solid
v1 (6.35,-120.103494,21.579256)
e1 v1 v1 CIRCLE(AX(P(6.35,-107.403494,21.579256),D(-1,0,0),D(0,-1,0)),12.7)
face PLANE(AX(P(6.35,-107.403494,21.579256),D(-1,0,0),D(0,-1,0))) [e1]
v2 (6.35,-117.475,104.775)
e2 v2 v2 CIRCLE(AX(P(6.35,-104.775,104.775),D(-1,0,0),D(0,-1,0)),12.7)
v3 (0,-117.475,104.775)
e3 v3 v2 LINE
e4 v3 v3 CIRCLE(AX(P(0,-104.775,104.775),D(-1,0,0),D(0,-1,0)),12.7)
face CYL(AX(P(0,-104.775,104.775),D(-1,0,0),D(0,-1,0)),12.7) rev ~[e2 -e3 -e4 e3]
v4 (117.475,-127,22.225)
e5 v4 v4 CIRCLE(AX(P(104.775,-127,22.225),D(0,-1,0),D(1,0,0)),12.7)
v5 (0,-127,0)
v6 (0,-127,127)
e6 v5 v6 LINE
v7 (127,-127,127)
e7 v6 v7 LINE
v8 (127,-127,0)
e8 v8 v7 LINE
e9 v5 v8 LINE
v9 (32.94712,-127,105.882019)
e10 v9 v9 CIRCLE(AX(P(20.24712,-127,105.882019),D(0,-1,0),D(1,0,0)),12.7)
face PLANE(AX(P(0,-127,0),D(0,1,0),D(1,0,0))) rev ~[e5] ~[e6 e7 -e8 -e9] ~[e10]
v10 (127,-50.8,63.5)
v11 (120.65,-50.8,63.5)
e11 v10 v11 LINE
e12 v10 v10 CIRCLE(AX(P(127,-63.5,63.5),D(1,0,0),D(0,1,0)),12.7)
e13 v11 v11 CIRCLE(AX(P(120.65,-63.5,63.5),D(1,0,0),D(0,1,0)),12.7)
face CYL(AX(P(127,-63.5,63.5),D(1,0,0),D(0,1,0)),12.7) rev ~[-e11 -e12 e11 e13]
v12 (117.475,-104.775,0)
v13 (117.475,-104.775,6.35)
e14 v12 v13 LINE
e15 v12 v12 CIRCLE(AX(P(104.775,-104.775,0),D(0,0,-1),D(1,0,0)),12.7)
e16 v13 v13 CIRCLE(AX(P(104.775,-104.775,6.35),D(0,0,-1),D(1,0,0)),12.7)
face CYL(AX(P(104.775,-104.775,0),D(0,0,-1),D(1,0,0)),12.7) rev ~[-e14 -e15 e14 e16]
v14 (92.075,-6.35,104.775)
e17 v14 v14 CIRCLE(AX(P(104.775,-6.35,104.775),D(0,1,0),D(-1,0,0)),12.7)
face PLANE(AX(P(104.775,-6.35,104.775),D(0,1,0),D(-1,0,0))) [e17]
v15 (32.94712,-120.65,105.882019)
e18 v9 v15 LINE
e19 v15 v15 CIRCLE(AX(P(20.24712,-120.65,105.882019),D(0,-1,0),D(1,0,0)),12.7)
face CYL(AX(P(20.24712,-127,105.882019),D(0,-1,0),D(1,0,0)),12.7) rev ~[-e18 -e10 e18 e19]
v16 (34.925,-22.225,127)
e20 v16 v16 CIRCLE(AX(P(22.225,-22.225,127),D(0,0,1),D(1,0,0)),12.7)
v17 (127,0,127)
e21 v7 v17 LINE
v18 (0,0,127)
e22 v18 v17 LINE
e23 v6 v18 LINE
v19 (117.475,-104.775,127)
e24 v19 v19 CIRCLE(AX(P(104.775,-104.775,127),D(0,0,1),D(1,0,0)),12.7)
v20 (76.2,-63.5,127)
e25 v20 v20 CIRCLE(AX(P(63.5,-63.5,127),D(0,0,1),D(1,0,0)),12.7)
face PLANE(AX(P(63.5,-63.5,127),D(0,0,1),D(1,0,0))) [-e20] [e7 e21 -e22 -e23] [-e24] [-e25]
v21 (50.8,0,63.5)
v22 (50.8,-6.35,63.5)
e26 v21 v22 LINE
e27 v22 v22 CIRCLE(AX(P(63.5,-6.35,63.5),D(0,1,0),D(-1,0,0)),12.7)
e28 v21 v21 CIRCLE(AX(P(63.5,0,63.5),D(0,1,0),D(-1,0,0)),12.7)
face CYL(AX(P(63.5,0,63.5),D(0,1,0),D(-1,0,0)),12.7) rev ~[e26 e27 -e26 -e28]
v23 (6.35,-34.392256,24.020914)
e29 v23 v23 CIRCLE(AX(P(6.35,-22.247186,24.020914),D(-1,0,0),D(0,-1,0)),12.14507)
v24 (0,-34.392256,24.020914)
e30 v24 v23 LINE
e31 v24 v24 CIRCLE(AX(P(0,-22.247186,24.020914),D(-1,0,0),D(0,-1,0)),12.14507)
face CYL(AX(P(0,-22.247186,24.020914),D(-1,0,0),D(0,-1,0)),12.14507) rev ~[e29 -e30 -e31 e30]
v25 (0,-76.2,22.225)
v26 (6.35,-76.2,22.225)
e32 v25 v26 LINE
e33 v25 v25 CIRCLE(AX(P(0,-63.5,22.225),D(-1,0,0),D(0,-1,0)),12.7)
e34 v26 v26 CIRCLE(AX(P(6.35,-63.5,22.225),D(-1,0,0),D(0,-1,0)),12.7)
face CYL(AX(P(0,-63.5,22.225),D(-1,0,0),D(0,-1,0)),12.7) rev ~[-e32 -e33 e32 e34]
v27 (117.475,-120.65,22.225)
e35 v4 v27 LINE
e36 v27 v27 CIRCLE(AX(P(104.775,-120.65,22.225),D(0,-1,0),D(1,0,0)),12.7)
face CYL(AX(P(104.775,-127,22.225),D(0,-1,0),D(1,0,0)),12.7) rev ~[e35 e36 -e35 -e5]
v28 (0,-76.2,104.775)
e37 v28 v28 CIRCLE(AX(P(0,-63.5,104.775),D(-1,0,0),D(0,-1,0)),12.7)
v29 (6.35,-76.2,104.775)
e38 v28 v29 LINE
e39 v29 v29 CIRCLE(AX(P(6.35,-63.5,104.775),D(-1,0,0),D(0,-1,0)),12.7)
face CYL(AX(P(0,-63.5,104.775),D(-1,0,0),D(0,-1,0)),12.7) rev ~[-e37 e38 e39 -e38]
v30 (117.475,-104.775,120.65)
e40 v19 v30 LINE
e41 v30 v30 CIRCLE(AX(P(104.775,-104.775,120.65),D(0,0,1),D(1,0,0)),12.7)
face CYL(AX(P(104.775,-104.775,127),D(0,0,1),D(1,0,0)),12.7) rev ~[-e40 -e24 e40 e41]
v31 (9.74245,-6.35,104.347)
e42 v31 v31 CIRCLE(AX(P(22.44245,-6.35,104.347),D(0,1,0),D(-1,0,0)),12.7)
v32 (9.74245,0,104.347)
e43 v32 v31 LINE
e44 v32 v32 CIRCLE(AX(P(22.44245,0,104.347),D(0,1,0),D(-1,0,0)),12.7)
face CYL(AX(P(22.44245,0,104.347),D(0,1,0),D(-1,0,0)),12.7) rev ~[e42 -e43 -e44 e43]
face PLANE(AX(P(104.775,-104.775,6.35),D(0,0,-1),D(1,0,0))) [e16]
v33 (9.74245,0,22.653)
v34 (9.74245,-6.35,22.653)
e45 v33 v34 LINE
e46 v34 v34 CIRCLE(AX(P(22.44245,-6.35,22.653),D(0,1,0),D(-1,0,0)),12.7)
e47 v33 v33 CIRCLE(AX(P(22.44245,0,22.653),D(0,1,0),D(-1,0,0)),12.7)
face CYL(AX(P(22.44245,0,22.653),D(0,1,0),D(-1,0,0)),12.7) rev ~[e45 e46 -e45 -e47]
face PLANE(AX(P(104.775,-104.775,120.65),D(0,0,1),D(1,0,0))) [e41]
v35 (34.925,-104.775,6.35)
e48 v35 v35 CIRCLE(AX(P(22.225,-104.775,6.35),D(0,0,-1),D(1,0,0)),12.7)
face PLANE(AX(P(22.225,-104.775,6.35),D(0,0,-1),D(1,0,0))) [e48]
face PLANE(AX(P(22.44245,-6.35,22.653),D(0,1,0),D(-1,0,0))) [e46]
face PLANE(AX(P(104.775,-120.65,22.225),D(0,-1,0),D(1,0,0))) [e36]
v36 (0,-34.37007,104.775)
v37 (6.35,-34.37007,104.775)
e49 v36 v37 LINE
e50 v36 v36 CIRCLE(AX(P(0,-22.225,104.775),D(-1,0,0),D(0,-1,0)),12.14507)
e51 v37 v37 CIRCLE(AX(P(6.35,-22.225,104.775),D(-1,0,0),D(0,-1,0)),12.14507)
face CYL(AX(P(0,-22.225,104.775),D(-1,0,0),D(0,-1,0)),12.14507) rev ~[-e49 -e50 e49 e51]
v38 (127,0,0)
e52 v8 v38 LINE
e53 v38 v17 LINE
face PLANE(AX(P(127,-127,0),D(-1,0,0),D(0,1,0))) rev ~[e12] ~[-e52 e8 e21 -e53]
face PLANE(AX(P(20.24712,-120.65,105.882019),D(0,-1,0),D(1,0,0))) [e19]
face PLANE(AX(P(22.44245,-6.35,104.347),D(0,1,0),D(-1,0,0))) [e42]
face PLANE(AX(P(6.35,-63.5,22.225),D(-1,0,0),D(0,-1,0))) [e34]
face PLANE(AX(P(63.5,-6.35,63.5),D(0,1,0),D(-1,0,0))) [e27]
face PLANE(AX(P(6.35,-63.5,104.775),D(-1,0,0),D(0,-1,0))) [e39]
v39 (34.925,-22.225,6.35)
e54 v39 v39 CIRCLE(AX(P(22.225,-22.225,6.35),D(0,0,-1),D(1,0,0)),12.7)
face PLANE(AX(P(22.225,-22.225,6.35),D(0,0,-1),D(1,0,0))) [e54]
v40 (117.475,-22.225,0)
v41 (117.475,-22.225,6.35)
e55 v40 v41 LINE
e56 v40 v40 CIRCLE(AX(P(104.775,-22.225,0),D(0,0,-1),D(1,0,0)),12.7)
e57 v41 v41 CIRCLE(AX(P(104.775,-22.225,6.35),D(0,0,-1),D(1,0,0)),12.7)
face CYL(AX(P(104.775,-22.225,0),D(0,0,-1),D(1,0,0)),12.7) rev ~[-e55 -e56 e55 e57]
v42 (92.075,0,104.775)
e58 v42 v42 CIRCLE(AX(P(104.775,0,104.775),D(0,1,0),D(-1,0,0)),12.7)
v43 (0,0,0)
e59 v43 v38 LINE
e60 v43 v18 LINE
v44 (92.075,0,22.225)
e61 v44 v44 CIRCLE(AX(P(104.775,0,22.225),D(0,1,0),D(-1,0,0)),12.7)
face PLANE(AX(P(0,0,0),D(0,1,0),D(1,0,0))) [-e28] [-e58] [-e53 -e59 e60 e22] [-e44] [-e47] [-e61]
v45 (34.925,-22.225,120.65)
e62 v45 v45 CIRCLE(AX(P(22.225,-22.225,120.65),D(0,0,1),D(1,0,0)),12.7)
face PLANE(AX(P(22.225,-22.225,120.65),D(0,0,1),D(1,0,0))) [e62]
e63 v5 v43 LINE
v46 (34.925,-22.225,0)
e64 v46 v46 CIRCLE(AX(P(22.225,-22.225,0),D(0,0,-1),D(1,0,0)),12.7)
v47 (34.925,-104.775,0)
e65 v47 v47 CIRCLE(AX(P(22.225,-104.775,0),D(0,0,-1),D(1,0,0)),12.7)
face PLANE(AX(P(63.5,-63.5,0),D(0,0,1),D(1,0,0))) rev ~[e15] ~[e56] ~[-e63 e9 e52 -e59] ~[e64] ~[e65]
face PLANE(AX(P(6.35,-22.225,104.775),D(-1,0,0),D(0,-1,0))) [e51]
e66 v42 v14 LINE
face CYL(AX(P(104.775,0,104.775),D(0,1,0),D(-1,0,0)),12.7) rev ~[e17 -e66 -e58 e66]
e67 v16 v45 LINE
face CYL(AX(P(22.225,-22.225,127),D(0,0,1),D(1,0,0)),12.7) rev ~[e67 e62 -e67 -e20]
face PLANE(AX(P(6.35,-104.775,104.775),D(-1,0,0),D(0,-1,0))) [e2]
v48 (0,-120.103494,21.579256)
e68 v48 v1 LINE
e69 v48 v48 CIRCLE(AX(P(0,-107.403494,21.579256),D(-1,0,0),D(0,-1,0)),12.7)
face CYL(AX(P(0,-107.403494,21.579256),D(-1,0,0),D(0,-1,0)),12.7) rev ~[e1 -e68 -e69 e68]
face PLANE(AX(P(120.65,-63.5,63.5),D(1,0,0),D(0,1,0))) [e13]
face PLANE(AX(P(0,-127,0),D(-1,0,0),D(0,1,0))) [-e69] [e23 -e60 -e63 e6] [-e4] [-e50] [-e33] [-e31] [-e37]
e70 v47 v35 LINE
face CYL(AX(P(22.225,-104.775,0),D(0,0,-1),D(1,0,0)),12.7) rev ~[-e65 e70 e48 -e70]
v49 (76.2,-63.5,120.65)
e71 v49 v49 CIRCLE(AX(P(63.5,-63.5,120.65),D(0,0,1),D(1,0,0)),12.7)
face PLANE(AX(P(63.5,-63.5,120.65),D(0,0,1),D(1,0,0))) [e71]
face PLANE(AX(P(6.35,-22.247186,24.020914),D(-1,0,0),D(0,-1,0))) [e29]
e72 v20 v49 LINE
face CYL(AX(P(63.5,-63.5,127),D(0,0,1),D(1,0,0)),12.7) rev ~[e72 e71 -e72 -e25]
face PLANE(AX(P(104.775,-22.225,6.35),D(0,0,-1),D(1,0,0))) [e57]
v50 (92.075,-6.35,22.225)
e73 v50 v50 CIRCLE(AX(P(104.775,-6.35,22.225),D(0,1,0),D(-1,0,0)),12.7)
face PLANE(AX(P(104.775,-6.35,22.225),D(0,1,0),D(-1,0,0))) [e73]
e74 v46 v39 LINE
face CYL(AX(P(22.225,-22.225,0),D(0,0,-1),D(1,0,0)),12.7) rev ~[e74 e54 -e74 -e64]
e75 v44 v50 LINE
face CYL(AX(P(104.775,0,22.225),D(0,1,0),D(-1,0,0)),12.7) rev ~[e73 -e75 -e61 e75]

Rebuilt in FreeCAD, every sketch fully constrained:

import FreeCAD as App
import Part
import Sketcher
Q = App.Units.Quantity


def add_polygon(sketch, points):
    """Adds a closed chain of lines whose ends are joined by coincident constraints."""
    first, n = sketch.GeometryCount, len(points)
    for a, b in zip(points, points[1:] + points[:1]):
        sketch.addGeometry(Part.LineSegment(App.Vector(*a, 0), App.Vector(*b, 0)), False)
    for i in range(n):
        sketch.addConstraint(Sketcher.Constraint("Coincident", first + i, 2, first + (i + 1) % n, 1))

doc = App.newDocument("Part")
body = doc.addObject("PartDesign::Body", "Body")

sketch1 = body.newObject("Sketcher::SketchObject", "Sketch")
sketch1.AttachmentSupport = (doc.getObject("XY_Plane"), [""])
sketch1.MapMode = "FlatFace"
add_polygon(sketch1, [(0, 0), (0, -127), (127, -127), (127, 0)])
sketch1.addConstraint(Sketcher.Constraint("Vertical", 0))
sketch1.addConstraint(Sketcher.Constraint("Horizontal", 1))
sketch1.addConstraint(Sketcher.Constraint("Vertical", 2))
sketch1.addConstraint(Sketcher.Constraint("Horizontal", 3))
sketch1.addConstraint(Sketcher.Constraint("Coincident", 3, 2, -1, 1))
sketch1.addConstraint(Sketcher.Constraint("Equal", 3, 0))
sketch1.addConstraint(Sketcher.Constraint("DistanceX", 1, 1, 1, 2, Q("5 in")))
pad1 = body.newObject("PartDesign::Pad", "Pad")
pad1.Profile = sketch1
pad1.Length = Q("5 in")

sketch2 = body.newObject("Sketcher::SketchObject", "Sketch001")
sketch2.AttachmentSupport = (doc.getObject("YZ_Plane"), [""])
sketch2.MapMode = "FlatFace"
sketch2.AttachmentOffset = App.Placement(App.Vector(0, 0, 5 * 25.4), App.Rotation())
sketch2.addGeometry(Part.Circle(App.Vector(-63.5, 63.5, 0), App.Vector(0, 0, 1), 12.7), False)
sketch2.addConstraint(Sketcher.Constraint("Diameter", 0, Q("1 in")))
sketch2.addConstraint(Sketcher.Constraint("DistanceX", 0, 3, -1, 1, Q("2.5 in")))
sketch2.addConstraint(Sketcher.Constraint("DistanceY", -1, 1, 0, 3, Q("2.5 in")))
pocket1 = body.newObject("PartDesign::Pocket", "Pocket")
pocket1.Profile = sketch2
pocket1.Length = Q("0.25 in")

sketch3 = body.newObject("Sketcher::SketchObject", "Sketch002")
sketch3.AttachmentSupport = (doc.getObject("XZ_Plane"), [""])
sketch3.MapMode = "FlatFace"
sketch3.AttachmentOffset = App.Placement(App.Vector(0, 0, 5 * 25.4), App.Rotation())
sketch3.addGeometry(Part.Circle(App.Vector(20.24712, 105.882019, 0), App.Vector(0, 0, 1), 12.7), False)
sketch3.addGeometry(Part.Circle(App.Vector(104.775, 22.225, 0), App.Vector(0, 0, 1), 12.7), False)
sketch3.addConstraint(Sketcher.Constraint("Equal", 0, 1))
sketch3.addConstraint(Sketcher.Constraint("Diameter", 0, Q("1 in")))
sketch3.addConstraint(Sketcher.Constraint("DistanceX", -1, 1, 1, 3, Q("4.125 in")))
sketch3.addConstraint(Sketcher.Constraint("DistanceY", -1, 1, 1, 3, Q("0.875 in")))
sketch3.addConstraint(Sketcher.Constraint("DistanceX", -1, 1, 0, 3, Q("20.24712 mm")))
sketch3.addConstraint(Sketcher.Constraint("DistanceY", -1, 1, 0, 3, Q("105.882019 mm")))
pocket2 = body.newObject("PartDesign::Pocket", "Pocket001")
pocket2.Profile = sketch3
pocket2.Length = Q("0.25 in")

sketch4 = body.newObject("Sketcher::SketchObject", "Sketch003")
sketch4.AttachmentSupport = (doc.getObject("YZ_Plane"), [""])
sketch4.MapMode = "FlatFace"
sketch4.addGeometry(Part.Circle(App.Vector(-107.403494, 21.579256, 0), App.Vector(0, 0, 1), 12.7), False)
sketch4.addGeometry(Part.Circle(App.Vector(-63.5, 22.225, 0), App.Vector(0, 0, 1), 12.7), False)
sketch4.addGeometry(Part.Circle(App.Vector(-22.247186, 24.020914, 0), App.Vector(0, 0, 1), 12.14507), False)
sketch4.addGeometry(Part.Circle(App.Vector(-104.775, 104.775, 0), App.Vector(0, 0, 1), 12.7), False)
sketch4.addGeometry(Part.Circle(App.Vector(-63.5, 104.775, 0), App.Vector(0, 0, 1), 12.7), False)
sketch4.addGeometry(Part.Circle(App.Vector(-22.225, 104.775, 0), App.Vector(0, 0, 1), 12.14507), False)
sketch4.addConstraint(Sketcher.Constraint("Equal", 0, 1))
sketch4.addConstraint(Sketcher.Constraint("Equal", 1, 3))
sketch4.addConstraint(Sketcher.Constraint("Equal", 3, 4))
sketch4.addConstraint(Sketcher.Constraint("Equal", 2, 5))
sketch4.addConstraint(Sketcher.Constraint("Horizontal", 3, 3, 4, 3))
sketch4.addConstraint(Sketcher.Constraint("Horizontal", 4, 3, 5, 3))
sketch4.addConstraint(Sketcher.Constraint("Vertical", 1, 3, 4, 3))
sketch4.addConstraint(Sketcher.Constraint("Diameter", 0, Q("1 in")))
sketch4.addConstraint(Sketcher.Constraint("DistanceX", 1, 3, -1, 1, Q("2.5 in")))
sketch4.addConstraint(Sketcher.Constraint("DistanceY", 1, 3, 3, 3, Q("3.25 in")))
sketch4.addConstraint(Sketcher.Constraint("DistanceX", 3, 3, 5, 3, Q("3.25 in")))
sketch4.addConstraint(Sketcher.Constraint("Diameter", 2, Q("24.29014 mm")))
sketch4.addConstraint(Sketcher.Constraint("DistanceY", -1, 1, 1, 3, Q("0.875 in")))
sketch4.addConstraint(Sketcher.Constraint("DistanceX", 3, 3, -1, 1, Q("4.125 in")))
sketch4.addConstraint(Sketcher.Constraint("DistanceY", 0, 3, 2, 3, Q("2.441658 mm")))
sketch4.addConstraint(Sketcher.Constraint("DistanceX", 0, 3, -1, 1, Q("107.403494 mm")))
sketch4.addConstraint(Sketcher.Constraint("DistanceY", -1, 1, 0, 3, Q("21.579256 mm")))
sketch4.addConstraint(Sketcher.Constraint("DistanceX", 2, 3, -1, 1, Q("22.247186 mm")))
pocket3 = body.newObject("PartDesign::Pocket", "Pocket002")
pocket3.Profile = sketch4
pocket3.Length = Q("0.25 in")
pocket3.Reversed = True

sketch5 = body.newObject("Sketcher::SketchObject", "Sketch004")
sketch5.AttachmentSupport = (doc.getObject("XZ_Plane"), [""])
sketch5.MapMode = "FlatFace"
sketch5.addGeometry(Part.Circle(App.Vector(22.44245, 104.347, 0), App.Vector(0, 0, 1), 12.7), False)
sketch5.addGeometry(Part.Circle(App.Vector(63.5, 63.5, 0), App.Vector(0, 0, 1), 12.7), False)
sketch5.addGeometry(Part.Circle(App.Vector(22.44245, 22.653, 0), App.Vector(0, 0, 1), 12.7), False)
sketch5.addGeometry(Part.Circle(App.Vector(104.775, 22.225, 0), App.Vector(0, 0, 1), 12.7), False)
sketch5.addGeometry(Part.Circle(App.Vector(104.775, 104.775, 0), App.Vector(0, 0, 1), 12.7), False)
sketch5.addConstraint(Sketcher.Constraint("Equal", 0, 1))
sketch5.addConstraint(Sketcher.Constraint("Equal", 1, 2))
sketch5.addConstraint(Sketcher.Constraint("Equal", 2, 3))
sketch5.addConstraint(Sketcher.Constraint("Equal", 3, 4))
sketch5.addConstraint(Sketcher.Constraint("Vertical", 0, 3, 2, 3))
sketch5.addConstraint(Sketcher.Constraint("Vertical", 3, 3, 4, 3))
sketch5.addConstraint(Sketcher.Constraint("Diameter", 0, Q("1 in")))
sketch5.addConstraint(Sketcher.Constraint("DistanceX", -1, 1, 1, 3, Q("2.5 in")))
sketch5.addConstraint(Sketcher.Constraint("DistanceY", -1, 1, 1, 3, Q("2.5 in")))
sketch5.addConstraint(Sketcher.Constraint("DistanceY", 3, 3, 4, 3, Q("3.25 in")))
sketch5.addConstraint(Sketcher.Constraint("DistanceX", -1, 1, 3, 3, Q("4.125 in")))
sketch5.addConstraint(Sketcher.Constraint("DistanceY", -1, 1, 3, 3, Q("0.875 in")))
sketch5.addConstraint(Sketcher.Constraint("DistanceY", -1, 1, 0, 3, Q("104.347 mm")))
sketch5.addConstraint(Sketcher.Constraint("DistanceY", -1, 1, 2, 3, Q("22.653 mm")))
sketch5.addConstraint(Sketcher.Constraint("DistanceX", -1, 1, 0, 3, Q("22.44245 mm")))
pocket4 = body.newObject("PartDesign::Pocket", "Pocket003")
pocket4.Profile = sketch5
pocket4.Length = Q("0.25 in")
pocket4.Reversed = True

sketch6 = body.newObject("Sketcher::SketchObject", "Sketch005")
sketch6.AttachmentSupport = (doc.getObject("XY_Plane"), [""])
sketch6.MapMode = "FlatFace"
sketch6.addGeometry(Part.Circle(App.Vector(104.775, -104.775, 0), App.Vector(0, 0, 1), 12.7), False)
sketch6.addGeometry(Part.Circle(App.Vector(22.225, -104.775, 0), App.Vector(0, 0, 1), 12.7), False)
sketch6.addGeometry(Part.Circle(App.Vector(104.775, -22.225, 0), App.Vector(0, 0, 1), 12.7), False)
sketch6.addGeometry(Part.Circle(App.Vector(22.225, -22.225, 0), App.Vector(0, 0, 1), 12.7), False)
sketch6.addConstraint(Sketcher.Constraint("Equal", 0, 1))
sketch6.addConstraint(Sketcher.Constraint("Equal", 1, 2))
sketch6.addConstraint(Sketcher.Constraint("Equal", 2, 3))
sketch6.addConstraint(Sketcher.Constraint("Horizontal", 0, 3, 1, 3))
sketch6.addConstraint(Sketcher.Constraint("Horizontal", 2, 3, 3, 3))
sketch6.addConstraint(Sketcher.Constraint("Vertical", 0, 3, 2, 3))
sketch6.addConstraint(Sketcher.Constraint("Vertical", 1, 3, 3, 3))
sketch6.addConstraint(Sketcher.Constraint("Diameter", 0, Q("1 in")))
sketch6.addConstraint(Sketcher.Constraint("DistanceX", 1, 3, 0, 3, Q("3.25 in")))
sketch6.addConstraint(Sketcher.Constraint("DistanceY", 0, 3, 2, 3, Q("3.25 in")))
sketch6.addConstraint(Sketcher.Constraint("DistanceX", -1, 1, 0, 3, Q("4.125 in")))
sketch6.addConstraint(Sketcher.Constraint("DistanceY", 0, 3, -1, 1, Q("4.125 in")))
pocket5 = body.newObject("PartDesign::Pocket", "Pocket004")
pocket5.Profile = sketch6
pocket5.Length = Q("0.25 in")
pocket5.Reversed = True

sketch7 = body.newObject("Sketcher::SketchObject", "Sketch006")
sketch7.AttachmentSupport = (doc.getObject("XY_Plane"), [""])
sketch7.MapMode = "FlatFace"
sketch7.AttachmentOffset = App.Placement(App.Vector(0, 0, 5 * 25.4), App.Rotation())
sketch7.addGeometry(Part.Circle(App.Vector(63.5, -63.5, 0), App.Vector(0, 0, 1), 12.7), False)
sketch7.addGeometry(Part.Circle(App.Vector(104.775, -104.775, 0), App.Vector(0, 0, 1), 12.7), False)
sketch7.addGeometry(Part.Circle(App.Vector(22.225, -22.225, 0), App.Vector(0, 0, 1), 12.7), False)
sketch7.addConstraint(Sketcher.Constraint("Equal", 0, 1))
sketch7.addConstraint(Sketcher.Constraint("Equal", 1, 2))
sketch7.addConstraint(Sketcher.Constraint("Diameter", 0, Q("1 in")))
sketch7.addConstraint(Sketcher.Constraint("DistanceX", -1, 1, 0, 3, Q("2.5 in")))
sketch7.addConstraint(Sketcher.Constraint("DistanceY", 0, 3, -1, 1, Q("2.5 in")))
sketch7.addConstraint(Sketcher.Constraint("DistanceX", 2, 3, 1, 3, Q("3.25 in")))
sketch7.addConstraint(Sketcher.Constraint("DistanceY", 1, 3, 2, 3, Q("3.25 in")))
sketch7.addConstraint(Sketcher.Constraint("DistanceX", -1, 1, 1, 3, Q("4.125 in")))
sketch7.addConstraint(Sketcher.Constraint("DistanceY", 1, 3, -1, 1, Q("4.125 in")))
pocket6 = body.newObject("PartDesign::Pocket", "Pocket005")
pocket6.Profile = sketch7
pocket6.Length = Q("0.25 in")

doc.recompute()
